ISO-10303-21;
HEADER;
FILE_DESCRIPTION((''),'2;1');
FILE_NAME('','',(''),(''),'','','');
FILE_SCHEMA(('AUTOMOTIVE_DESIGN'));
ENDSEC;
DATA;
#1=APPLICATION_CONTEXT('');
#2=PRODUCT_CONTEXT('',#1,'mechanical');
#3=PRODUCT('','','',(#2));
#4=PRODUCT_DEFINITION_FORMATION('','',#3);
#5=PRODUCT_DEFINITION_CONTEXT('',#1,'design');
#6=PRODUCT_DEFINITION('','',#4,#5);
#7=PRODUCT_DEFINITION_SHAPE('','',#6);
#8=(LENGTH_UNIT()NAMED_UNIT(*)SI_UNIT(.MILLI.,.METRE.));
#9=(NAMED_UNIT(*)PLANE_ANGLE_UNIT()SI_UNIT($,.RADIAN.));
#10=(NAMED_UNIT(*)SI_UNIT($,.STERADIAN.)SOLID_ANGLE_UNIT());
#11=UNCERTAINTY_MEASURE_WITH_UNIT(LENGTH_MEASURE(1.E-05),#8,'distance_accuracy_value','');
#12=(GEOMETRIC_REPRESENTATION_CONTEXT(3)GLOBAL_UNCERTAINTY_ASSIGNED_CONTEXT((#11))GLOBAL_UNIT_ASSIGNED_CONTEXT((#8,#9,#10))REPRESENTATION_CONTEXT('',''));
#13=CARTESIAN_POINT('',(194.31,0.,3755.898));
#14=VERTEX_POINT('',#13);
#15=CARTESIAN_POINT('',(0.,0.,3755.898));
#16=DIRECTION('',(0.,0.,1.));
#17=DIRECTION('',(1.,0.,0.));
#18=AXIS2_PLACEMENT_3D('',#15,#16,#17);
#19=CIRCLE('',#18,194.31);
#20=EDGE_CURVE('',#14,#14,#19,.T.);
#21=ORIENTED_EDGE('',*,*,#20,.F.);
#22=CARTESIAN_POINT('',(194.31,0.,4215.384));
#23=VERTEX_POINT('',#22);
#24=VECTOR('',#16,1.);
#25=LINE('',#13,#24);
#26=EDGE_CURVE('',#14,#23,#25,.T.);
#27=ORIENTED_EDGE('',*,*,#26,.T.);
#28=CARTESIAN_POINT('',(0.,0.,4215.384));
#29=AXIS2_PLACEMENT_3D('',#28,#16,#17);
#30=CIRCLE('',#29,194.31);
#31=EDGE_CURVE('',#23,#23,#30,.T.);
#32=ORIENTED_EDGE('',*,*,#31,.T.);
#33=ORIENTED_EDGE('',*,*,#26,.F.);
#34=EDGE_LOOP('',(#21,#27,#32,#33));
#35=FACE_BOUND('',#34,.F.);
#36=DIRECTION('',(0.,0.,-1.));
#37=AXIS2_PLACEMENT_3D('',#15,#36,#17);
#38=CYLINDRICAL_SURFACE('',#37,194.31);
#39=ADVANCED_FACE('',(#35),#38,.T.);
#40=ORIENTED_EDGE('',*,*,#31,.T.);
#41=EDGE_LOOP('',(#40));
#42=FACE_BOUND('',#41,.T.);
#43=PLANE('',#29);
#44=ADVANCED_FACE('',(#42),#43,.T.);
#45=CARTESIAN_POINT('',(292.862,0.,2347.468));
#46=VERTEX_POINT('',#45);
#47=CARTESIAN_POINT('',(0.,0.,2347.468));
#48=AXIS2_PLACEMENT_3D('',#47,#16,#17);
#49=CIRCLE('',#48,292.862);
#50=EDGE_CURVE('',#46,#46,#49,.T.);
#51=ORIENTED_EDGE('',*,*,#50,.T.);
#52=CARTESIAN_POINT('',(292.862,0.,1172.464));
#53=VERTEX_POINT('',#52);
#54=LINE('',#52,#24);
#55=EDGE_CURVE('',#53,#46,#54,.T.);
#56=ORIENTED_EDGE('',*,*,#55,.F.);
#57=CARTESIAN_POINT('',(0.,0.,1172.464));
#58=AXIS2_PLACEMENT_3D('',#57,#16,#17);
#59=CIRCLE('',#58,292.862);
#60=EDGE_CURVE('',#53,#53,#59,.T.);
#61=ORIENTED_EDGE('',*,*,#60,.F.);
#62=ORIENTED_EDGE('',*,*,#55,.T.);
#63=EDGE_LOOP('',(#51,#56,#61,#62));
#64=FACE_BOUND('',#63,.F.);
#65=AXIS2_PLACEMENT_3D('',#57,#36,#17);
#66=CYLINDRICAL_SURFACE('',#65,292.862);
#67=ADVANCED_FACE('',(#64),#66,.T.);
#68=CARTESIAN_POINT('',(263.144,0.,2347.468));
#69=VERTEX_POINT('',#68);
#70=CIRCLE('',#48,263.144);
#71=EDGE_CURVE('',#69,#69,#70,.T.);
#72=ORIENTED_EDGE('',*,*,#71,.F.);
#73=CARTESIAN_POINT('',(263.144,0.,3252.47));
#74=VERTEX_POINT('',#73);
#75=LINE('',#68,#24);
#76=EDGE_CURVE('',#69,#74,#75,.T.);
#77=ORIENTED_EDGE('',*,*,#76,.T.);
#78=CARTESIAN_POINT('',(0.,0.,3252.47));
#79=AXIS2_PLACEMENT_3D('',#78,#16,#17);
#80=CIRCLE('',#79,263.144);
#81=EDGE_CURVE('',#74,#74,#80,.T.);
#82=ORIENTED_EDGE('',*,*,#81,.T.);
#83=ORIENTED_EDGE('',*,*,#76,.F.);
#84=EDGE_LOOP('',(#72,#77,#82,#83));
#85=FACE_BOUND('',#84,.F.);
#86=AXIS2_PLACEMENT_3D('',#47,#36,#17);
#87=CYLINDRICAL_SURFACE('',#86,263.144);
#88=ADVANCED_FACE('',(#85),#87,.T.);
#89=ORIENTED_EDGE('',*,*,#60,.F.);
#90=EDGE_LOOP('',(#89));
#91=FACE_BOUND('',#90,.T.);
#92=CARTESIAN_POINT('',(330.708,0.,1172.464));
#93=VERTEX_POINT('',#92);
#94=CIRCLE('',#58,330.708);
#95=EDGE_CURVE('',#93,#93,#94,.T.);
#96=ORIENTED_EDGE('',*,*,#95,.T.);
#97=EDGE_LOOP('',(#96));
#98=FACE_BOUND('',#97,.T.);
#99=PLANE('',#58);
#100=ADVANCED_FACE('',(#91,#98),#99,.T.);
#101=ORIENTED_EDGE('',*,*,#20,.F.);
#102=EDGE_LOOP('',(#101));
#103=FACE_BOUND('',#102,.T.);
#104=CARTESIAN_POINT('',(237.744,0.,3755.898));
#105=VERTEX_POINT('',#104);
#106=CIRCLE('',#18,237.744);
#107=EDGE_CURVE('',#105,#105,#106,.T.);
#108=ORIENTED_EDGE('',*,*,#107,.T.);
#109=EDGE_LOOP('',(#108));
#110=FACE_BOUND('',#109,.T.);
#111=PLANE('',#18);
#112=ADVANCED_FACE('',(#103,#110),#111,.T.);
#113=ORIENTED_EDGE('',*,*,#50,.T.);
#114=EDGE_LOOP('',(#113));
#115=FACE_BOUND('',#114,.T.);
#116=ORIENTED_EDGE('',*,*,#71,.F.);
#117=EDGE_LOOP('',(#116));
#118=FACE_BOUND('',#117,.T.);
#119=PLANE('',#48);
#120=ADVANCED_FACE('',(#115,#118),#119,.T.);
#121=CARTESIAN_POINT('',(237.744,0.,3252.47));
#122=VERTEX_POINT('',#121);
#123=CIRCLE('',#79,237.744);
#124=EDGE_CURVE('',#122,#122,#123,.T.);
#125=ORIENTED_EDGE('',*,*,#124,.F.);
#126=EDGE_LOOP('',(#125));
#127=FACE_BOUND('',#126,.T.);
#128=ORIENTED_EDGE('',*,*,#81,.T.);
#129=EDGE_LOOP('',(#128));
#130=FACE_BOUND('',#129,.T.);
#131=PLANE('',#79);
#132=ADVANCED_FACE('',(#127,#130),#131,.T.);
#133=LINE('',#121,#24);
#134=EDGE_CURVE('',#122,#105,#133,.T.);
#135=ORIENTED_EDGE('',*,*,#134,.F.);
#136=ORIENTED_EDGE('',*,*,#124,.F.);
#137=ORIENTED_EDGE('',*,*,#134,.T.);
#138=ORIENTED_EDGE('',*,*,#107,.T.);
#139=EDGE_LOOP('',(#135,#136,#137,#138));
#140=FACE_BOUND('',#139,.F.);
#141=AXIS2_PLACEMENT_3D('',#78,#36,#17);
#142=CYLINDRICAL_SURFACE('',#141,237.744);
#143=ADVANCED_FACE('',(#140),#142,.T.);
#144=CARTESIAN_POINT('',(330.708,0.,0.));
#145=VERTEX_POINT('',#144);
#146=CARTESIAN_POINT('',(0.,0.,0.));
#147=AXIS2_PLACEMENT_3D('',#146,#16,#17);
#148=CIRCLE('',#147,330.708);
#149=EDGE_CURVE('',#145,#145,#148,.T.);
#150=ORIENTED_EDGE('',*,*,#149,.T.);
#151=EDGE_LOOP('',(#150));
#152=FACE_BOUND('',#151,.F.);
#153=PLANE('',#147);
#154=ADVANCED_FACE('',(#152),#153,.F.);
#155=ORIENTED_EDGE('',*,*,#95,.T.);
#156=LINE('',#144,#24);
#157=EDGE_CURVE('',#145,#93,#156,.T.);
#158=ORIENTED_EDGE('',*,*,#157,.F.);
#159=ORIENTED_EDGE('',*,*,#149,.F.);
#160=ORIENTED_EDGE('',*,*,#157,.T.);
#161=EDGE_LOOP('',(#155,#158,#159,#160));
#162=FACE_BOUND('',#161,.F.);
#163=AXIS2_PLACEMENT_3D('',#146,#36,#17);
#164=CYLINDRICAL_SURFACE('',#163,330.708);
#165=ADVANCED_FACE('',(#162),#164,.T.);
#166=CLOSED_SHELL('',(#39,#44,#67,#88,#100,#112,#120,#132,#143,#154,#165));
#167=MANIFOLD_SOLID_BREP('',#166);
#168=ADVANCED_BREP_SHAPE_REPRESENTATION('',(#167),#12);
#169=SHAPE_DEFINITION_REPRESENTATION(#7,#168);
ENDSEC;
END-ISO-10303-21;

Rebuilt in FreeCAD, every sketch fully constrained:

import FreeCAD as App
import Part
import Sketcher
Q = App.Units.Quantity

doc = App.newDocument("Part")
body = doc.addObject("PartDesign::Body", "Body")

# Sketch on XY plane
sketch1 = body.newObject("Sketcher::SketchObject", "Sketch")
sketch1.AttachmentSupport = (doc.getObject("XY_Plane"), [""])
sketch1.MapMode = "FlatFace"
sketch1.addGeometry(Part.Circle(App.Vector(0, 0, 0), App.Vector(0, 0, 1), 331), False)
sketch1.addConstraint([
    Sketcher.Constraint("Coincident", 0, 3, -1, 1),
    Sketcher.Constraint("Diameter", 0, Q("26.04 in")),
])
pad1 = body.newObject("PartDesign::Pad", "Pad")
pad1.Profile = sketch1
pad1.Length = Q("46.16 in")

# Sketch on XY plane
sketch2 = body.newObject("Sketcher::SketchObject", "Sketch001")
sketch2.AttachmentSupport = (doc.getObject("XY_Plane"), [""])
sketch2.MapMode = "FlatFace"
sketch2.AttachmentOffset = App.Placement(App.Vector(0, 0, 46.16 * 25.4), App.Rotation())
sketch2.addGeometry(Part.Circle(App.Vector(0, 0, 0), App.Vector(0, 0, 1), 293), False)
sketch2.addConstraint([
    Sketcher.Constraint("Coincident", 0, 3, -1, 1),
    Sketcher.Constraint("Diameter", 0, Q("23.06 in")),
])
pad2 = body.newObject("PartDesign::Pad", "Pad001")
pad2.Profile = sketch2
pad2.Length = Q("46.26 in")

# Sketch on XY plane
sketch3 = body.newObject("Sketcher::SketchObject", "Sketch002")
sketch3.AttachmentSupport = (doc.getObject("XY_Plane"), [""])
sketch3.MapMode = "FlatFace"
sketch3.AttachmentOffset = App.Placement(App.Vector(0, 0, 92.42 * 25.4), App.Rotation())
sketch3.addGeometry(Part.Circle(App.Vector(0, 0, 0), App.Vector(0, 0, 1), 263), False)
sketch3.addConstraint([
    Sketcher.Constraint("Coincident", 0, 3, -1, 1),
    Sketcher.Constraint("Diameter", 0, Q("20.72 in")),
])
pad3 = body.newObject("PartDesign::Pad", "Pad002")
pad3.Profile = sketch3
pad3.Length = Q("35.63 in")

# Sketch on XY plane
sketch4 = body.newObject("Sketcher::SketchObject", "Sketch003")
sketch4.AttachmentSupport = (doc.getObject("XY_Plane"), [""])
sketch4.MapMode = "FlatFace"
sketch4.AttachmentOffset = App.Placement(App.Vector(0, 0, 128.05 * 25.4), App.Rotation())
sketch4.addGeometry(Part.Circle(App.Vector(0, 0, 0), App.Vector(0, 0, 1), 238), False)
sketch4.addConstraint([
    Sketcher.Constraint("Coincident", 0, 3, -1, 1),
    Sketcher.Constraint("Diameter", 0, Q("18.72 in")),
])
pad4 = body.newObject("PartDesign::Pad", "Pad003")
pad4.Profile = sketch4
pad4.Length = Q("19.82 in")

# Sketch on XY plane
sketch5 = body.newObject("Sketcher::SketchObject", "Sketch004")
sketch5.AttachmentSupport = (doc.getObject("XY_Plane"), [""])
sketch5.MapMode = "FlatFace"
sketch5.AttachmentOffset = App.Placement(App.Vector(0, 0, 147.87 * 25.4), App.Rotation())
sketch5.addGeometry(Part.Circle(App.Vector(0, 0, 0), App.Vector(0, 0, 1), 194), False)
sketch5.addConstraint([
    Sketcher.Constraint("Coincident", 0, 3, -1, 1),
    Sketcher.Constraint("Diameter", 0, Q("15.3 in")),
])
pad5 = body.newObject("PartDesign::Pad", "Pad004")
pad5.Profile = sketch5
pad5.Length = Q("18.09 in")

doc.recompute()
